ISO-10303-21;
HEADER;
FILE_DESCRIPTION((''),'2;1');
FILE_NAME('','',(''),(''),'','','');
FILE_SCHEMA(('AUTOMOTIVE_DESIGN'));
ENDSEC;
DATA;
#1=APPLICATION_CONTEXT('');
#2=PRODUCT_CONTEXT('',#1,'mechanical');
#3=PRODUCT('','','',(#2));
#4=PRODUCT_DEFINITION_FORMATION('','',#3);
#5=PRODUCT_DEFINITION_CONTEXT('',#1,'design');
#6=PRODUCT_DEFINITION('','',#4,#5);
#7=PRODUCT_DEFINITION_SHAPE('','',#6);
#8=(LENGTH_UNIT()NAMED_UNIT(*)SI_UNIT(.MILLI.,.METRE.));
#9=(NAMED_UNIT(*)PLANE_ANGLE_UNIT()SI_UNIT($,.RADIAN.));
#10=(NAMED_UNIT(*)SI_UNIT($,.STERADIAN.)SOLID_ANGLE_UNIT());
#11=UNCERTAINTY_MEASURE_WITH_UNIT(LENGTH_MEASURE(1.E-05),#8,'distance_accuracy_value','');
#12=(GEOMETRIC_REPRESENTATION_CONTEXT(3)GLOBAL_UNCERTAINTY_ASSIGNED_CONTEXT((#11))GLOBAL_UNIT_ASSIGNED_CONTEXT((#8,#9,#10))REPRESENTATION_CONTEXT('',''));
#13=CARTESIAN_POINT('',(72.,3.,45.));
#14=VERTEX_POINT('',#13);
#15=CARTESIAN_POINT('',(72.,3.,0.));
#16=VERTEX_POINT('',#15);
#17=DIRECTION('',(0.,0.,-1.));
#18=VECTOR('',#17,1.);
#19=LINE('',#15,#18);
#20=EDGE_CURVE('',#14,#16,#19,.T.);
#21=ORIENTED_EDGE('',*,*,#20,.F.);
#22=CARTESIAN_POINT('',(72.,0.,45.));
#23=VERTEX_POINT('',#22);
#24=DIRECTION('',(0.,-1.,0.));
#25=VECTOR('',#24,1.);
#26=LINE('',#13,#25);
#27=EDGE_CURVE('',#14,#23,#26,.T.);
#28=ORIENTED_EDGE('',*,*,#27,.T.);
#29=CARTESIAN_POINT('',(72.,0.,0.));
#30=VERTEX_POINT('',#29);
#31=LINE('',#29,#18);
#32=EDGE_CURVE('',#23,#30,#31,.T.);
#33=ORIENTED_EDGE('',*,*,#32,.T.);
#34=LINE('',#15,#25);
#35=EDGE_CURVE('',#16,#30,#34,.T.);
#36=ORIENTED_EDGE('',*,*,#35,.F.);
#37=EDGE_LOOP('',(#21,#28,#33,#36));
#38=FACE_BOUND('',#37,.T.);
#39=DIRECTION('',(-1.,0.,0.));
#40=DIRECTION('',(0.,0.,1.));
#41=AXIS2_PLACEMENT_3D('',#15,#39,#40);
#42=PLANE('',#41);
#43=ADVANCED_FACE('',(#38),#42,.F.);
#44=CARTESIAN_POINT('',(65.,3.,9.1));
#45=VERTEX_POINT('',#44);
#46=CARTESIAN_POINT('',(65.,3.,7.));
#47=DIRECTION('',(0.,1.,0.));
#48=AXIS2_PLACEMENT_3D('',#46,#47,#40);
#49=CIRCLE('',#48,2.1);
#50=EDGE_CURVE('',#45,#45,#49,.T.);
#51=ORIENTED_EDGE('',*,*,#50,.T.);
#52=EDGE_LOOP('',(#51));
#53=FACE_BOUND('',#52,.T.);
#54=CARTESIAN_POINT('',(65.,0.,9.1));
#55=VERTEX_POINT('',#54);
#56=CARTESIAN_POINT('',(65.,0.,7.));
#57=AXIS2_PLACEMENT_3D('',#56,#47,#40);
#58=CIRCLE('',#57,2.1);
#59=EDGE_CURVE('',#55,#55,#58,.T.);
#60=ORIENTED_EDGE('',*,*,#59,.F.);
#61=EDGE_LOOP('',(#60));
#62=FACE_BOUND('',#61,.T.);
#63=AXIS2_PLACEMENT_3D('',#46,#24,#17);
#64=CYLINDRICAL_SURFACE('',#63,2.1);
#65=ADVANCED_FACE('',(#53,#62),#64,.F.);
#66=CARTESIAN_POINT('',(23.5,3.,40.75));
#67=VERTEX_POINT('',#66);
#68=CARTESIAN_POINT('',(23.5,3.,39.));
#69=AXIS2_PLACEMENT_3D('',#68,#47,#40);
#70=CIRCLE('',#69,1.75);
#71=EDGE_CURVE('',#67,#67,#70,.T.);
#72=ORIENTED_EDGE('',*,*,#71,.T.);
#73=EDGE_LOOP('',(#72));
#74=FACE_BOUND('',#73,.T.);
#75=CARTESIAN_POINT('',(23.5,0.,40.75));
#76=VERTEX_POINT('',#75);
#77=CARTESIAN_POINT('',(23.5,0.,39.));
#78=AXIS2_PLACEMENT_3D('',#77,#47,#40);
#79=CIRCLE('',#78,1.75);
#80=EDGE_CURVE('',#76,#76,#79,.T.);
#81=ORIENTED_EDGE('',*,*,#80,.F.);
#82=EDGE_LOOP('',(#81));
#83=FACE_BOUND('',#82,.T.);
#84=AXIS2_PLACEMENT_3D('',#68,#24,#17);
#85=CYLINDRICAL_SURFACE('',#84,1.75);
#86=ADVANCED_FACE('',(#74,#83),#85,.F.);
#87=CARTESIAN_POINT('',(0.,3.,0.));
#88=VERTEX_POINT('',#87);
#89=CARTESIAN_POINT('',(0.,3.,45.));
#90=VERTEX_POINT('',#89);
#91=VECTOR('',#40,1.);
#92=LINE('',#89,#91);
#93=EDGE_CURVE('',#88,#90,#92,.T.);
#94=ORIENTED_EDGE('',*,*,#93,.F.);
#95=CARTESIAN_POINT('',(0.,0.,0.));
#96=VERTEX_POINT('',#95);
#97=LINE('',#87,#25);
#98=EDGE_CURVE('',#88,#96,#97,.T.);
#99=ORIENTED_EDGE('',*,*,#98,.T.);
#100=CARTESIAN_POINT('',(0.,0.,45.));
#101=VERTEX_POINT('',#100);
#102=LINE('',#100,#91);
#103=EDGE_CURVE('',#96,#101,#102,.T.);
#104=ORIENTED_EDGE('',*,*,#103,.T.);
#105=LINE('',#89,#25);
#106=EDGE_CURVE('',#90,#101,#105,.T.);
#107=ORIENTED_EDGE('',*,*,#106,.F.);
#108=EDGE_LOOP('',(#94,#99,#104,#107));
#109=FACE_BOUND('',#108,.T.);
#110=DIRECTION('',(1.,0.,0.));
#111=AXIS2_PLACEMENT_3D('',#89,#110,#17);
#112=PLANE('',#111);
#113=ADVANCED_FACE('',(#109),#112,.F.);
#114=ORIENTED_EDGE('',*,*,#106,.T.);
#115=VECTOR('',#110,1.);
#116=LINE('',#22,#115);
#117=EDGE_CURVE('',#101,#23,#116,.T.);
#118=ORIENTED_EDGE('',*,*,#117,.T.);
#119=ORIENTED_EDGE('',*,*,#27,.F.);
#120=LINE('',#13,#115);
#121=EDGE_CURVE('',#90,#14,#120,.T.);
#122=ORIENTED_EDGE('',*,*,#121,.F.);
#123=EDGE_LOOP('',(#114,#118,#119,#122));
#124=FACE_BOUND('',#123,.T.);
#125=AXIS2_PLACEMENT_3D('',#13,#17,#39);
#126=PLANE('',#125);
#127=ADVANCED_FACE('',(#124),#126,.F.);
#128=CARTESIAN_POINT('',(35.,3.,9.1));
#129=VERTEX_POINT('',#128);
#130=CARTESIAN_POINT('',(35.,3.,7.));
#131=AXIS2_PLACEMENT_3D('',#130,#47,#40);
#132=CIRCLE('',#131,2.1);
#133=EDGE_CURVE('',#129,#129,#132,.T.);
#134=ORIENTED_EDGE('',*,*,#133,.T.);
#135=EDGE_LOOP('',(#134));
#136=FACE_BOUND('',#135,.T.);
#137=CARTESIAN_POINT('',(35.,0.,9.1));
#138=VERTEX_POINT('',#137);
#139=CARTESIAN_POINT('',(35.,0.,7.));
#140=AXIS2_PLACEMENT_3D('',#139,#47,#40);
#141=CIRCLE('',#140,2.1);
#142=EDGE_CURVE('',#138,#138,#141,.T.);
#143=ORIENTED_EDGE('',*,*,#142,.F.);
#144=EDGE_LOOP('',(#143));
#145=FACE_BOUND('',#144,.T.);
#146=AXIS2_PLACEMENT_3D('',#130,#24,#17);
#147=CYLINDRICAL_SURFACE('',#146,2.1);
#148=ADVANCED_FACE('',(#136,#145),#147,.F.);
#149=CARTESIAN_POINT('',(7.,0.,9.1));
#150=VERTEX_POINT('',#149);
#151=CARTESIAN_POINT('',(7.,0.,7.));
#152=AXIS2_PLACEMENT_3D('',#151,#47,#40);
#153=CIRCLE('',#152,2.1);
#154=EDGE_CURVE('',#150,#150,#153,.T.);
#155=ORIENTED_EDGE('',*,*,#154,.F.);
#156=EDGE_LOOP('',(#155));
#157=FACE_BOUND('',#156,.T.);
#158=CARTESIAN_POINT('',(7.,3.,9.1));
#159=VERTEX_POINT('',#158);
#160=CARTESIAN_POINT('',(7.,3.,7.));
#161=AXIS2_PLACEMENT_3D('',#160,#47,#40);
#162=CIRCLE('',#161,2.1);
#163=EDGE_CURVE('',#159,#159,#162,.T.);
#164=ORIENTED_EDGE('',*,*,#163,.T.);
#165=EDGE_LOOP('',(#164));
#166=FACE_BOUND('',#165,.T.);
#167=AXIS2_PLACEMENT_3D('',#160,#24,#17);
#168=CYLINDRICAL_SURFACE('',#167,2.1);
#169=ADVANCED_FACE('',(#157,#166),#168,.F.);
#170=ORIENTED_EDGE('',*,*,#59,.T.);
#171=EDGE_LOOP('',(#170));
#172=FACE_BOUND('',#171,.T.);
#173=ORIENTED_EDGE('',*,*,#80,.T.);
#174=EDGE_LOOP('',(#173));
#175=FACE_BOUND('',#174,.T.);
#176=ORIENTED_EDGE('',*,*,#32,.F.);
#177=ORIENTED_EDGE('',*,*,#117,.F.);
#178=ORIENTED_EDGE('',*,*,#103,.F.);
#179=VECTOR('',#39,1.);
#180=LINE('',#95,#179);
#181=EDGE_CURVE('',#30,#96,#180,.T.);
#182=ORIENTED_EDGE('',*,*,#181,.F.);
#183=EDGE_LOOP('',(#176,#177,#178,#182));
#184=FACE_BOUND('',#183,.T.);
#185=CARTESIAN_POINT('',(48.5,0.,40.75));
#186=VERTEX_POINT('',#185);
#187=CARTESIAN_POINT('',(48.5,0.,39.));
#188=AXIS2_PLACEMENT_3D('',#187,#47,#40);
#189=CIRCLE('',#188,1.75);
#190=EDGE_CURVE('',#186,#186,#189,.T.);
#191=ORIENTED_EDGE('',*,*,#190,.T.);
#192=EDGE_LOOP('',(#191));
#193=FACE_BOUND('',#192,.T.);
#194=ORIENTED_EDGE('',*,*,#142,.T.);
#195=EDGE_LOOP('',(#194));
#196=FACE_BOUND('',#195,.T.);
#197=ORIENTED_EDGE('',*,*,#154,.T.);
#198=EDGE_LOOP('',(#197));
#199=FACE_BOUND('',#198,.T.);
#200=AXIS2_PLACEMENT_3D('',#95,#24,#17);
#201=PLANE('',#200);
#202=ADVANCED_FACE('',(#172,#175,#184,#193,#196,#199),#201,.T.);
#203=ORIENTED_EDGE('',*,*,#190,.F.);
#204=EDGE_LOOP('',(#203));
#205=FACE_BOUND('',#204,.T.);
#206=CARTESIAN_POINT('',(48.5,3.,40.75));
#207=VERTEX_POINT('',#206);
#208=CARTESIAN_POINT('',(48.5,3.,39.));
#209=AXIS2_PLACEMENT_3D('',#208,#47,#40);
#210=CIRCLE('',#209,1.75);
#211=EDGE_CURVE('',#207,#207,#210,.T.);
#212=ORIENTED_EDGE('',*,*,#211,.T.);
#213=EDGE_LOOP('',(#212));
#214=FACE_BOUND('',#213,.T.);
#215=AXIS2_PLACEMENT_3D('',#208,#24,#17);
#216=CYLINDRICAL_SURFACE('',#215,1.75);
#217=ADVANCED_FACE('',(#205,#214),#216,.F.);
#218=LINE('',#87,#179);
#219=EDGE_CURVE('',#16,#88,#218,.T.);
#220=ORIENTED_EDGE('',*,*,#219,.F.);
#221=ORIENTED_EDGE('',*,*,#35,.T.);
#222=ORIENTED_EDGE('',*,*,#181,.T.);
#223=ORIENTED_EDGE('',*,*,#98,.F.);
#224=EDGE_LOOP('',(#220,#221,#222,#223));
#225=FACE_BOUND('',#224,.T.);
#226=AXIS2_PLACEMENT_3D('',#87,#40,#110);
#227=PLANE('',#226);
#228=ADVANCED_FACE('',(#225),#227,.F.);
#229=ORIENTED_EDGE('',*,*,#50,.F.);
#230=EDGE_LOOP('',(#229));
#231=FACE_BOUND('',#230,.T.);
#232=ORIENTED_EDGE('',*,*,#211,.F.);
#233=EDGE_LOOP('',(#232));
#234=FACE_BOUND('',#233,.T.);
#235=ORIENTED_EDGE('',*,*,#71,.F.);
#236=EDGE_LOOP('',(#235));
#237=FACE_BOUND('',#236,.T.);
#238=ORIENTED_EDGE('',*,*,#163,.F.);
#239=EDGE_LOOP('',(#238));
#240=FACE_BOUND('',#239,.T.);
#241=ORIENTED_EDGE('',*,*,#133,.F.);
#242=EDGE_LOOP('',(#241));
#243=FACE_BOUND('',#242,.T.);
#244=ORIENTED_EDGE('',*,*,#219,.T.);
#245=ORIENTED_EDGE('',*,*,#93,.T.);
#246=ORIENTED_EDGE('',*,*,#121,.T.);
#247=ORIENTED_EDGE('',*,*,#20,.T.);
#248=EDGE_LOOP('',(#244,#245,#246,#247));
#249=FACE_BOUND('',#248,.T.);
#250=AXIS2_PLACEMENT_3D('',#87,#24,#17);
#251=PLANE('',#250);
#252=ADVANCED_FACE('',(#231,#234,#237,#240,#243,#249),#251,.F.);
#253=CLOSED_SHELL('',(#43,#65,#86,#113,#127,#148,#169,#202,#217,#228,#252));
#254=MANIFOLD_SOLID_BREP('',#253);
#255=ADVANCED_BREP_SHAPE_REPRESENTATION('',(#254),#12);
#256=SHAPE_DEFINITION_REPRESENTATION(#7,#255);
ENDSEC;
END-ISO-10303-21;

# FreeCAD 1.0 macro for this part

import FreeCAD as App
import Part
import Sketcher

V = App.Vector
Q = App.Units.Quantity

doc = App.newDocument("Part")
body = doc.addObject("PartDesign::Body", "Body")

# Sketch on XZ plane
sketch1 = doc.addObject("Sketcher::SketchObject", "Sketch")
body.addObject(sketch1)
sketch1.AttachmentSupport = (doc.XZ_Plane, [""])
sketch1.MapMode = "FlatFace"
sketch1.addGeometry([
    Part.LineSegment(V(0, 0, 0), V(0, 45, 0)),  # 0
    Part.LineSegment(V(0, 45, 0), V(72, 45, 0)),  # 1
    Part.LineSegment(V(72, 45, 0), V(72, 0, 0)),  # 2
    Part.LineSegment(V(72, 0, 0), V(0, 0, 0)),  # 3
    Part.Circle(V(23.5, 39, 0), V(0, 0, 1), 1.75),  # 4
    Part.Circle(V(48.5, 39, 0), V(0, 0, 1), 1.75),  # 5
    Part.Circle(V(7, 7, 0), V(0, 0, 1), 2.1),  # 6
    Part.Circle(V(35, 7, 0), V(0, 0, 1), 2.1),  # 7
    Part.Circle(V(65, 7, 0), V(0, 0, 1), 2.1),  # 8
], False)
sketch1.addConstraint([
    Sketcher.Constraint("Coincident", 0, 2, 1, 1),
    Sketcher.Constraint("Coincident", 1, 2, 2, 1),
    Sketcher.Constraint("Coincident", 2, 2, 3, 1),
    Sketcher.Constraint("Coincident", 3, 2, 0, 1),
    Sketcher.Constraint("Vertical", 0),
    Sketcher.Constraint("Horizontal", 1),
    Sketcher.Constraint("Vertical", 2),
    Sketcher.Constraint("Horizontal", 3),
    Sketcher.Constraint("Coincident", 3, 2, -1, 1),
    Sketcher.Constraint("Equal", 4, 5),
    Sketcher.Constraint("Equal", 6, 7),
    Sketcher.Constraint("Equal", 7, 8),
    Sketcher.Constraint("Horizontal", 4, 3, 5, 3),
    Sketcher.Constraint("Horizontal", 6, 3, 7, 3),
    Sketcher.Constraint("Horizontal", 7, 3, 8, 3),
    Sketcher.Constraint("Diameter", 4, Q("3.5 mm")),
    Sketcher.Constraint("Diameter", 6, Q("4.2 mm")),
    Sketcher.Constraint("DistanceX", 1, 1, 1, 2, Q("72 mm")),
    Sketcher.Constraint("DistanceY", 0, 1, 0, 2, Q("45 mm")),
    Sketcher.Constraint("DistanceY", -1, 1, 4, 3, Q("39 mm")),
    Sketcher.Constraint("DistanceX", -1, 1, 6, 3, Q("7 mm")),
    Sketcher.Constraint("DistanceY", -1, 1, 6, 3, Q("7 mm")),
    Sketcher.Constraint("DistanceX", -1, 1, 7, 3, Q("35 mm")),
    Sketcher.Constraint("DistanceX", -1, 1, 8, 3, Q("65 mm")),
    Sketcher.Constraint("DistanceX", 4, 3, 5, 3, Q("25 mm")),
    Sketcher.Constraint("DistanceX", -1, 1, 4, 3, Q("23.5 mm")),
])
pad1 = doc.addObject("PartDesign::Pad", "Pad")
body.addObject(pad1)
pad1.Profile = sketch1
pad1.Length = 3
pad1.Reversed = True

doc.recompute()
